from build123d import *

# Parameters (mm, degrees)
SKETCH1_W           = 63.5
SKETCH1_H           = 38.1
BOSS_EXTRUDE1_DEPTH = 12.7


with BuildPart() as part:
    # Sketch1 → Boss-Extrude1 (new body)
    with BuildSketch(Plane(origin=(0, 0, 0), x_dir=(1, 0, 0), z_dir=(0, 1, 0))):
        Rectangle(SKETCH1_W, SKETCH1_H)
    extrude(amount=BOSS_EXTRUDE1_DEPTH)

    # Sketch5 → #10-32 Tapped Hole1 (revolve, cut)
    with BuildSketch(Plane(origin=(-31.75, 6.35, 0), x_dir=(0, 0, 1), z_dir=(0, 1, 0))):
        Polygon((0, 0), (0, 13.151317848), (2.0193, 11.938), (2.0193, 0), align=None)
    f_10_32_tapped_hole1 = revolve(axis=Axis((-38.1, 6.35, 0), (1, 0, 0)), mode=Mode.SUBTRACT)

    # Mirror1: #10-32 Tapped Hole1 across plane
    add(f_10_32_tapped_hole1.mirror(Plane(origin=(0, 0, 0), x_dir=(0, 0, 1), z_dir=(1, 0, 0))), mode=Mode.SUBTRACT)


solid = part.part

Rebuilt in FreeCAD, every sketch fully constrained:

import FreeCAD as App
import Part
import Sketcher

V = App.Vector
Q = App.Units.Quantity


def add_polygon(sketch, points):
    """Adds a closed chain of lines whose ends are joined by coincident constraints."""
    first, n = sketch.GeometryCount, len(points)
    for a, b in zip(points, points[1:] + points[:1]):
        sketch.addGeometry(Part.LineSegment(App.Vector(*a, 0), App.Vector(*b, 0)), False)
    for i in range(n):
        sketch.addConstraint(Sketcher.Constraint("Coincident", first + i, 2, first + (i + 1) % n, 1))

doc = App.newDocument("Part")
params = doc.addObject("Spreadsheet::Sheet", "Params")
for row, (alias, value) in enumerate([
    ("sketch1_width", "2.5 in"),
    ("sketch1_height", "1.5 in"),
    ("pad1_length", "0.5 in"),
    ("sketch2_width", "0.47 in"),
    ("groove_angle", "360 deg"),
], start=1):
    params.set(f"A{row}", alias)
    params.set(f"B{row}", "=" + value)
    params.setAlias(f"B{row}", alias)

body = doc.addObject("PartDesign::Body", "Body")

sketch1 = body.newObject("Sketcher::SketchObject", "Sketch")
sketch1.AttachmentSupport = (doc.getObject("XZ_Plane"), [""])
sketch1.MapMode = "FlatFace"
add_polygon(sketch1, [(-31.75, -19.05), (-31.75, 19.05), (31.75, 19.05), (31.75, -19.05)])
sketch1.addConstraint([
    Sketcher.Constraint("Vertical", 0),
    Sketcher.Constraint("Horizontal", 1),
    Sketcher.Constraint("Vertical", 2),
    Sketcher.Constraint("Horizontal", 3),
    Sketcher.Constraint("Symmetric", 0, 2, 2, 2, -1, 1),
    Sketcher.Constraint("DistanceX", 1, 1, 1, 2, Q("2.5 in")),
    Sketcher.Constraint("DistanceY", 0, 1, 0, 2, Q("1.5 in")),
])
sketch1.setExpression("Constraints[9]", "Params.sketch1_width")
sketch1.setExpression("Constraints[10]", "Params.sketch1_height")
pad1 = body.newObject("PartDesign::Pad", "Pad")
pad1.Profile = sketch1
pad1.setExpression("Length", "Params.pad1_length")
pad1.Reversed = True

sketch2 = body.newObject("Sketcher::SketchObject", "Sketch001")
sketch2.AttachmentSupport = (doc.getObject("XZ_Plane"), [""])
sketch2.MapMode = "FlatFace"
sketch2.AttachmentOffset = App.Placement(V(0, 0, -0.25 * 25.4), App.Rotation())
add_polygon(sketch2, [(-18.598682, 0), (-31.75, 0), (-31.75, 2.0193), (-19.812, 2.0193)])
sketch2.addConstraint([
    Sketcher.Constraint("Horizontal", 0),
    Sketcher.Constraint("Vertical", 1),
    Sketcher.Constraint("Horizontal", 2),
    Sketcher.Constraint("PointOnObject", 0, 2, -1),
    Sketcher.Constraint("Angle", 3, Q("-59 deg")),
    Sketcher.Constraint("DistanceX", 2, 1, 2, 2, Q("0.47 in")),
    Sketcher.Constraint("DistanceX", 0, 2, -1, 1, Q("1.25 in")),
    Sketcher.Constraint("DistanceY", 1, 1, 1, 2, Q("0.0795 in")),
])
sketch2.setExpression("Constraints[9]", "Params.sketch2_width")
groove = body.newObject("PartDesign::Groove", "Groove")
groove.Profile = sketch2
groove.ReferenceAxis = (sketch2, ["H_Axis"])
groove.setExpression("Angle", "Params.groove_angle")
doc.recompute()

mirrored = body.newObject("PartDesign::Mirrored", "Mirrored")
mirrored.Originals = [groove]
mirrored.MirrorPlane = (doc.getObject("YZ_Plane"), [""])
body.Tip = mirrored

doc.recompute()
